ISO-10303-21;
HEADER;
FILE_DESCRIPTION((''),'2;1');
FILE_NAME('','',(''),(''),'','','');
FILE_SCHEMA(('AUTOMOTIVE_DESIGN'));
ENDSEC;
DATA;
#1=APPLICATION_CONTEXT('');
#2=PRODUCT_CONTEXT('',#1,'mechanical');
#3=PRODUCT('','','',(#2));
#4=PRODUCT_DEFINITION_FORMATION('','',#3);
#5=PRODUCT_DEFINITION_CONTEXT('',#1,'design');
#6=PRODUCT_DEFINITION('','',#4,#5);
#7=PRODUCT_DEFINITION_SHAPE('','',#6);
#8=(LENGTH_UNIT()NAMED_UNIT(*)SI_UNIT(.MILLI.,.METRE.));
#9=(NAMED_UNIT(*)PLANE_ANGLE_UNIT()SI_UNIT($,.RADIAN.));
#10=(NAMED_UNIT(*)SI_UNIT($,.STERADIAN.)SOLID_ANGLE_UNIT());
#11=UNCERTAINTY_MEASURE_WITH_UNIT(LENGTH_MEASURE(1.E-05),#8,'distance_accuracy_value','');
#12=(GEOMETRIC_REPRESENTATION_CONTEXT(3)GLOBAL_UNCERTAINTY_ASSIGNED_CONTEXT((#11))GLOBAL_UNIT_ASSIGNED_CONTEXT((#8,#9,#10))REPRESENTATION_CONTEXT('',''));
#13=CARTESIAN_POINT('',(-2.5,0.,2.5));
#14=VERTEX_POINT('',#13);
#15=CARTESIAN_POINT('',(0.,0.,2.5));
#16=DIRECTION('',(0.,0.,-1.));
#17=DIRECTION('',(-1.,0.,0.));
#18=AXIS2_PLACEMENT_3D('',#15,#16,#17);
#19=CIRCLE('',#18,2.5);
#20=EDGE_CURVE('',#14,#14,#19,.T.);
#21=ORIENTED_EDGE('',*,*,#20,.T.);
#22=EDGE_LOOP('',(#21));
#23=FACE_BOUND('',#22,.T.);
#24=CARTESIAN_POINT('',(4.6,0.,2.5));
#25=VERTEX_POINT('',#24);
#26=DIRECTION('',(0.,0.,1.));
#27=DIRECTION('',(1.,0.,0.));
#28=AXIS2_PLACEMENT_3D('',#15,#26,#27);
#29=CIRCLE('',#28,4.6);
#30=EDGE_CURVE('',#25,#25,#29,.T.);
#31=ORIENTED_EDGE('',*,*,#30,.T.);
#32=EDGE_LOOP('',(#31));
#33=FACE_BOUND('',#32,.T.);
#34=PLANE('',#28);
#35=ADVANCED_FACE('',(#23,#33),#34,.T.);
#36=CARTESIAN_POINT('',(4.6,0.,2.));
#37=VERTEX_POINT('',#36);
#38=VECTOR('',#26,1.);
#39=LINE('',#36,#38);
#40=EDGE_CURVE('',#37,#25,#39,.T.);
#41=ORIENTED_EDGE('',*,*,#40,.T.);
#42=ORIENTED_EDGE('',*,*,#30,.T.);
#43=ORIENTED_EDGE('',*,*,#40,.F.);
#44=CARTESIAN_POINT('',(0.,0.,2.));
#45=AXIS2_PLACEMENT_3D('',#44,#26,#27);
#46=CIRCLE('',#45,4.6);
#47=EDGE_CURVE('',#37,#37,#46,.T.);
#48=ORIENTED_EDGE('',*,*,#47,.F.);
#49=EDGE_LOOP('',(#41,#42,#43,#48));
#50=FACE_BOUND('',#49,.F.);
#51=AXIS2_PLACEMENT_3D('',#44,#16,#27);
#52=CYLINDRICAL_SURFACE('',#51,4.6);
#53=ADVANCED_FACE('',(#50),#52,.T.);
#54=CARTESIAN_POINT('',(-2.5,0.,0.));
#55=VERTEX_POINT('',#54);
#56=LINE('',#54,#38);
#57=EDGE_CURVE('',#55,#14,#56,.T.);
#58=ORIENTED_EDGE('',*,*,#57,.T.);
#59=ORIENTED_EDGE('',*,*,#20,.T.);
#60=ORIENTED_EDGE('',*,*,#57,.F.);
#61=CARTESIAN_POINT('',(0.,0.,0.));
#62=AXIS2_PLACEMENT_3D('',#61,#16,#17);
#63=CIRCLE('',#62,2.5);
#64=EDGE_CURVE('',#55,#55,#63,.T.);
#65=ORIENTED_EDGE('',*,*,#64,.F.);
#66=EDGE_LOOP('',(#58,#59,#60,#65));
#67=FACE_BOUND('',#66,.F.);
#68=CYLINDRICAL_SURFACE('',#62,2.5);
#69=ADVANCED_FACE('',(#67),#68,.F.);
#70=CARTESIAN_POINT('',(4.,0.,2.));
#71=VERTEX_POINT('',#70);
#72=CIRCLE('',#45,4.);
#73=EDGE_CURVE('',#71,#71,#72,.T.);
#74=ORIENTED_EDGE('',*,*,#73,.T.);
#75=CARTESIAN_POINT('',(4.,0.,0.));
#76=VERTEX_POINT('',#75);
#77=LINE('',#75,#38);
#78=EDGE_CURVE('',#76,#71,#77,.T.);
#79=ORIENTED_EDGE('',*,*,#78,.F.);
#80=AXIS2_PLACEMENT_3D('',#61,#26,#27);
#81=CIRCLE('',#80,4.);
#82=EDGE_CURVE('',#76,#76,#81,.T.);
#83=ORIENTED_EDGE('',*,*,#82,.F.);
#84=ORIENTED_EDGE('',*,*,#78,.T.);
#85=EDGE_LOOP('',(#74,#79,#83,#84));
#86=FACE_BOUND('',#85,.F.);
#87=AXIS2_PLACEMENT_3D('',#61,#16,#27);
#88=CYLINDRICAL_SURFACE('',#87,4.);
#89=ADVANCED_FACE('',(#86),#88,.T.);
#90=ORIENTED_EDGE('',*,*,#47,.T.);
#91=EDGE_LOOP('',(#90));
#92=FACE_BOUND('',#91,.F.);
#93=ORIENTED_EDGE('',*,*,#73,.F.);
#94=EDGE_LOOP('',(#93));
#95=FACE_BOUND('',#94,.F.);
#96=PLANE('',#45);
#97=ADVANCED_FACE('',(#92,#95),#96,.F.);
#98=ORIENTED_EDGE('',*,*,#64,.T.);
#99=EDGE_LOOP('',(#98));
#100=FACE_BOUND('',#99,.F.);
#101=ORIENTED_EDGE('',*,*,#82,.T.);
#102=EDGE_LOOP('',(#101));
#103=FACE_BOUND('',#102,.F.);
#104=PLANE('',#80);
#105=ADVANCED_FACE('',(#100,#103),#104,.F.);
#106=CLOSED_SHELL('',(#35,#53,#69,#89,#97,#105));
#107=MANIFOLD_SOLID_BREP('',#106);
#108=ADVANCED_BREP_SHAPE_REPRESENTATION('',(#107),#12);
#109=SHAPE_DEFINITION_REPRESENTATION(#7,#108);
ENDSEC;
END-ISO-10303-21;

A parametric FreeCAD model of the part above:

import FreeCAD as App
import Part
import Sketcher
from FreeCAD import Vector
Q = App.Units.Quantity

doc = App.newDocument("Part")
body = doc.addObject("PartDesign::Body", "Body")

# Sketch on XY plane
sketch1 = body.newObject("Sketcher::SketchObject", "Sketch")
sketch1.AttachmentSupport = (doc.getObject("XY_Plane"), [""])
sketch1.MapMode = "FlatFace"
sketch1.addGeometry(Part.Circle(Vector(0, 0, 0), Vector(0, 0, 1), 4), False)
sketch1.addConstraint([
    Sketcher.Constraint("Coincident", 0, 3, -1, 1),
    Sketcher.Constraint("Diameter", 0, Q("8 mm")),
])
pad1 = body.newObject("PartDesign::Pad", "Pad")
pad1.Profile = sketch1
pad1.Length = 2

# Sketch on XY plane
sketch2 = body.newObject("Sketcher::SketchObject", "Sketch001")
sketch2.AttachmentSupport = (doc.getObject("XY_Plane"), [""])
sketch2.MapMode = "FlatFace"
sketch2.AttachmentOffset = App.Placement(Vector(0, 0, 2), App.Rotation())
sketch2.addGeometry(Part.Circle(Vector(0, 0, 0), Vector(0, 0, 1), 4.6), False)
sketch2.addConstraint([
    Sketcher.Constraint("Coincident", 0, 3, -1, 1),
    Sketcher.Constraint("Diameter", 0, Q("9.2 mm")),
])
pad2 = body.newObject("PartDesign::Pad", "Pad001")
pad2.Profile = sketch2
pad2.Length = 0.5

# Sketch on XY plane
sketch3 = body.newObject("Sketcher::SketchObject", "Sketch002")
sketch3.AttachmentSupport = (doc.getObject("XY_Plane"), [""])
sketch3.MapMode = "FlatFace"
sketch3.addGeometry(Part.Circle(Vector(0, 0, 0), Vector(0, 0, 1), 2.5), False)
sketch3.addConstraint([
    Sketcher.Constraint("Coincident", 0, 3, -1, 1),
    Sketcher.Constraint("Diameter", 0, Q("5 mm")),
])
pocket1 = body.newObject("PartDesign::Pocket", "Pocket")
pocket1.Profile = sketch3
pocket1.Length = 9
pocket1.Reversed = True

doc.recompute()
